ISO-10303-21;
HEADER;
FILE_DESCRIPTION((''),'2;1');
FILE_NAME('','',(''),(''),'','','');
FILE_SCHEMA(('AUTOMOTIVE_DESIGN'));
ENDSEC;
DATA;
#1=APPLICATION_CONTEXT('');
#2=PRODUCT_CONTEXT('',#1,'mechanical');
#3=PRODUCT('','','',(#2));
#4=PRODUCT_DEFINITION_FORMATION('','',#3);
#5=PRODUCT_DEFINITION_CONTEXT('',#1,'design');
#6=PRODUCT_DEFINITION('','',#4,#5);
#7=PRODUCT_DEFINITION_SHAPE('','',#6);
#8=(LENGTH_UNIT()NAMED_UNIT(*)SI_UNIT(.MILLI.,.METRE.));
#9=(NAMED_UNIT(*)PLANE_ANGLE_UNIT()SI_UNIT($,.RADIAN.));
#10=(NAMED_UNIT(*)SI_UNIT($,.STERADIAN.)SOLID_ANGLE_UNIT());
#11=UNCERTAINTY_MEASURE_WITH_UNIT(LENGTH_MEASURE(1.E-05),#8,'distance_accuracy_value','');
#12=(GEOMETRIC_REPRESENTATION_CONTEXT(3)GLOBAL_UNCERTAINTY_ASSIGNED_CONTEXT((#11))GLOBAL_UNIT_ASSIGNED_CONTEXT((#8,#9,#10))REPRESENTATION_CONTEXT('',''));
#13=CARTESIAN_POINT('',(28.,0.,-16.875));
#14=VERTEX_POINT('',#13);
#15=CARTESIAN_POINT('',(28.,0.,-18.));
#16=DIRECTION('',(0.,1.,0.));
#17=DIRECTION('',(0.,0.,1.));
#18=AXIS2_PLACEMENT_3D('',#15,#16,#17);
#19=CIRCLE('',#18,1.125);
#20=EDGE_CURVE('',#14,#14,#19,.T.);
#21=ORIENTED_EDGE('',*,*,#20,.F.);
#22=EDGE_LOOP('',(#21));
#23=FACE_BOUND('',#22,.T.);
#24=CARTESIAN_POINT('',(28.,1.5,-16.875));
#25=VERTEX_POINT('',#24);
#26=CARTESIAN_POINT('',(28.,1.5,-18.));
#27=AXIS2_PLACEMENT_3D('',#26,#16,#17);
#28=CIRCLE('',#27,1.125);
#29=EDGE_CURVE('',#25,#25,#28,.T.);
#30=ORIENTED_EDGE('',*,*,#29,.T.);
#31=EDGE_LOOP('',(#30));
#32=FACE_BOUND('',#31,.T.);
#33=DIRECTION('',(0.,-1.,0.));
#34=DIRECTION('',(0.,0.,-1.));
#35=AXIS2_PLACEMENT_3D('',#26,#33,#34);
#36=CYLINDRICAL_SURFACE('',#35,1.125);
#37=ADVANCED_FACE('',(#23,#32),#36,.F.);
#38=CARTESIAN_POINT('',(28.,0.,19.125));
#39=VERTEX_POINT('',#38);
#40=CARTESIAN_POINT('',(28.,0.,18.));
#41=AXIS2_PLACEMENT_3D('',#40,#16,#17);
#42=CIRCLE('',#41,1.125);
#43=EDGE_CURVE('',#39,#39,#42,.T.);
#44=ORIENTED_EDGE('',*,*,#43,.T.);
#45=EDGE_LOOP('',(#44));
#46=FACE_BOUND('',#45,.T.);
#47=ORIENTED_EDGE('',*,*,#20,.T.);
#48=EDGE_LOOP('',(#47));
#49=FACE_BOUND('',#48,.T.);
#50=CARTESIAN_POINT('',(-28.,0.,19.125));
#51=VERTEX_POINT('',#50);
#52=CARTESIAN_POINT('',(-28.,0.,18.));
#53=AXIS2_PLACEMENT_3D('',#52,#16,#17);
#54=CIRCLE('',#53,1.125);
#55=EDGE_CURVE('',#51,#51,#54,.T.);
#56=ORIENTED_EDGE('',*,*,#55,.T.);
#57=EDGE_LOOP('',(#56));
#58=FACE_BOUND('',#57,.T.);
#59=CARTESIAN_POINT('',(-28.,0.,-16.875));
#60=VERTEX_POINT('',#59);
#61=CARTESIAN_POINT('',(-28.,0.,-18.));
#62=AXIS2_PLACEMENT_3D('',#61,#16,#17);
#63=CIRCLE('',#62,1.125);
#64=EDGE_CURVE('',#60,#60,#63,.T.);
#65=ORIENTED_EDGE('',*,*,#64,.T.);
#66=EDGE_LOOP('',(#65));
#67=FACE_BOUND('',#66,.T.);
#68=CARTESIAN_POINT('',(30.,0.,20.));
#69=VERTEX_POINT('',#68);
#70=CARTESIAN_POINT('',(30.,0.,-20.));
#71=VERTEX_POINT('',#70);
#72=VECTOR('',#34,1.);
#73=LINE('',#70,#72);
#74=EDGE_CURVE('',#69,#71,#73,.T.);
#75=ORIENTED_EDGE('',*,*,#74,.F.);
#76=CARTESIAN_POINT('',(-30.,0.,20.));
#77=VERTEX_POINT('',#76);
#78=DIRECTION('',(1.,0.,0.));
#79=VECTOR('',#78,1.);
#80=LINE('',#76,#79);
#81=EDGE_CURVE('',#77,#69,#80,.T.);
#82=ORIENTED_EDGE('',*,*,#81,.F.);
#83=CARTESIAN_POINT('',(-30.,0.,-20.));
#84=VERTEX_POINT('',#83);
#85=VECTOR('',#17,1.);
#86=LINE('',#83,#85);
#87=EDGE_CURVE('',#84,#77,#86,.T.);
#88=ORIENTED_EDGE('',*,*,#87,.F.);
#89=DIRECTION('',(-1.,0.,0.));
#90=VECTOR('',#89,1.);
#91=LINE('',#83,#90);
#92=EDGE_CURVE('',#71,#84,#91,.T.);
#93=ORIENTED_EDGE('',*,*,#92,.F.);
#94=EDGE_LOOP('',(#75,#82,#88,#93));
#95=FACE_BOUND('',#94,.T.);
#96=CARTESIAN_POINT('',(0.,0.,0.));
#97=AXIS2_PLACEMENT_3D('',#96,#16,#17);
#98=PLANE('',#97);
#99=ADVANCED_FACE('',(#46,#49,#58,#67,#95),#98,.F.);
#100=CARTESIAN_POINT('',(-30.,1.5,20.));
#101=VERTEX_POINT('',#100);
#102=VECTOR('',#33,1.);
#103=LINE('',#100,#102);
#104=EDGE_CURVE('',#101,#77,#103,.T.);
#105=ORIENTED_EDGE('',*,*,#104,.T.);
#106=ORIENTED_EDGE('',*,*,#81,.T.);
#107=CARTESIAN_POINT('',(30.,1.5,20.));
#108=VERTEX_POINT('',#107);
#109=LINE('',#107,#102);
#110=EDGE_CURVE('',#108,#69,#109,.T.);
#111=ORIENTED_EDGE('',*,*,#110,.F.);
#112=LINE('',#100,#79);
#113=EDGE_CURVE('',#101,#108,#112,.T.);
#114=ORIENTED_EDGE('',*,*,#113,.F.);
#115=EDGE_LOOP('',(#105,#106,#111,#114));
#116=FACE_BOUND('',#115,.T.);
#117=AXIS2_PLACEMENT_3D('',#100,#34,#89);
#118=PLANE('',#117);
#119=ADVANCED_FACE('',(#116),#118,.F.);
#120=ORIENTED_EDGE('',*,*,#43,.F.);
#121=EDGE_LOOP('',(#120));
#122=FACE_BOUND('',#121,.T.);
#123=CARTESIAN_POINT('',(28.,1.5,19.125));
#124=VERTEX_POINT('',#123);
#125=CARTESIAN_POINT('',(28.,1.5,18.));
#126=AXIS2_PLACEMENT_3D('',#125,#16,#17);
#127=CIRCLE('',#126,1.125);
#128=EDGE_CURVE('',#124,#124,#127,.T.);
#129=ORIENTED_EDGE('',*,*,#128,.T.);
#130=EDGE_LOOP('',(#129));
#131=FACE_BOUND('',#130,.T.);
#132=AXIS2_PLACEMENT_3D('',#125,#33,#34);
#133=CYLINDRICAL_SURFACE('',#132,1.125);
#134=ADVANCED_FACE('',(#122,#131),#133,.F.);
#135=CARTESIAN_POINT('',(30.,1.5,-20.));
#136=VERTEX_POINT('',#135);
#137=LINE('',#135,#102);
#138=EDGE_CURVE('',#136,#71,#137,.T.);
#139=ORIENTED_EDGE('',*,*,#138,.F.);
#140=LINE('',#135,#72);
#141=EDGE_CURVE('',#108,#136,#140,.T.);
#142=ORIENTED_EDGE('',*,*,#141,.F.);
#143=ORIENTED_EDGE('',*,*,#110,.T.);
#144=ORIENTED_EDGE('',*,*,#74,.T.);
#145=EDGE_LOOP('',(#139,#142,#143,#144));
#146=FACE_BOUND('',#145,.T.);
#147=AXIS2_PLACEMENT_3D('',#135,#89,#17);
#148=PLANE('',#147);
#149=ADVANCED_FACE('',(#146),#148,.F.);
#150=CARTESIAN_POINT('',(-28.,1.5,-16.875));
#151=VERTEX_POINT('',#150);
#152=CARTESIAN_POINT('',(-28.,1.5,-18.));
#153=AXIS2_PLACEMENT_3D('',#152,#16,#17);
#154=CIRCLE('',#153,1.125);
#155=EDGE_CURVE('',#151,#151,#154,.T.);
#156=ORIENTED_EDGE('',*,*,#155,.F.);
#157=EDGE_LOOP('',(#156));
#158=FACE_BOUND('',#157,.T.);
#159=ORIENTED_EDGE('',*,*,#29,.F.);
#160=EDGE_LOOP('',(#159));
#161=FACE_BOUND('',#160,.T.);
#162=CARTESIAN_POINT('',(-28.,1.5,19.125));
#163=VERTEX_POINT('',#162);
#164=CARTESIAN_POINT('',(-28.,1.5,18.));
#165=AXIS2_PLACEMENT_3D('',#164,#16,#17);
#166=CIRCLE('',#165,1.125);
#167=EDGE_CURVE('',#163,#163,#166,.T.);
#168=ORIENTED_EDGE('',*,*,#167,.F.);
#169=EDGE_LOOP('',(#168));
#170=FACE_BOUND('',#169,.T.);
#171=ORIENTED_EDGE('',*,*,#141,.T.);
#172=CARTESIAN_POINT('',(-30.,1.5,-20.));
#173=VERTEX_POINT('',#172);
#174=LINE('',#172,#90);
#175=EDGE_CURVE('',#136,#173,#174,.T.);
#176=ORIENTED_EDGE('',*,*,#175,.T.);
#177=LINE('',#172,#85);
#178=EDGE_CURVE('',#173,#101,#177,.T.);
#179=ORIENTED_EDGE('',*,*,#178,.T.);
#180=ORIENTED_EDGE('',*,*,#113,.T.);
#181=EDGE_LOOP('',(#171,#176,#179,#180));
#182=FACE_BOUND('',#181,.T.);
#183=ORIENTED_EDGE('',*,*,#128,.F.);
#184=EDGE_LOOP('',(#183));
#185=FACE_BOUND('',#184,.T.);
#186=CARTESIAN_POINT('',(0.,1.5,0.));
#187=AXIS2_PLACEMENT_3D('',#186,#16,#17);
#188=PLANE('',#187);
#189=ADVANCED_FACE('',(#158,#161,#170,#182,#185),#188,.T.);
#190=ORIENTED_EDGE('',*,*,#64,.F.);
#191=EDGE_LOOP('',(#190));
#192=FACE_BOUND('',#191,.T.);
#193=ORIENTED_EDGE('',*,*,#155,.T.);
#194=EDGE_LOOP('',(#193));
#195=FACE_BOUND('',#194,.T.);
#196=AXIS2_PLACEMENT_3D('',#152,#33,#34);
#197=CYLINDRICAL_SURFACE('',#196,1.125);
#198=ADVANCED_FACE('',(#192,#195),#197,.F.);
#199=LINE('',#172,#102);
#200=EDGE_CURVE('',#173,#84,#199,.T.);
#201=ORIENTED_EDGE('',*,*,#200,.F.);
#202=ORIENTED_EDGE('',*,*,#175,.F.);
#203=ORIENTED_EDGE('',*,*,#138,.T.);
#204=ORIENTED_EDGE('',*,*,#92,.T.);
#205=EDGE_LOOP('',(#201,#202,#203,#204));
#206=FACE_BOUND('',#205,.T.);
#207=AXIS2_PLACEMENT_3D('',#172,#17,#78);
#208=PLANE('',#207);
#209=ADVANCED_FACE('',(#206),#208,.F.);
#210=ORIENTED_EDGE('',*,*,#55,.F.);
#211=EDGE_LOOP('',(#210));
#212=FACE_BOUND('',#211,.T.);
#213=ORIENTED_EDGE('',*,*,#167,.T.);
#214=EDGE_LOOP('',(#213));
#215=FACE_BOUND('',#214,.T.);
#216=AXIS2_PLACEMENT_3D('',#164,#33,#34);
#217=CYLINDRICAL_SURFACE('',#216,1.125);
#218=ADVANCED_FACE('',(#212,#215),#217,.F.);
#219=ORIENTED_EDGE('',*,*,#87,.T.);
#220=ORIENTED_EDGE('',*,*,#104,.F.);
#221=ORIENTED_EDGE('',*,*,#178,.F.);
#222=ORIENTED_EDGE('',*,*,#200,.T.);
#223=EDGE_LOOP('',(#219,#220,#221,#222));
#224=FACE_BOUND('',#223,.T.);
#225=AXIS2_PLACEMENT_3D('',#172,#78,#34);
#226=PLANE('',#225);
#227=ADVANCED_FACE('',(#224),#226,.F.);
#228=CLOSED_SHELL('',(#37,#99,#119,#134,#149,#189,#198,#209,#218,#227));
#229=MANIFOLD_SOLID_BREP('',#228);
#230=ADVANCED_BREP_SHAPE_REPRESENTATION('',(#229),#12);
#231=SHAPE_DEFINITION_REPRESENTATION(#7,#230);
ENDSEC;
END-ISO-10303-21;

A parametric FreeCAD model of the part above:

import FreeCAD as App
import Part
import Sketcher

V = App.Vector

doc = App.newDocument("Part")
body = doc.addObject("PartDesign::Body", "Body")

sketch1 = doc.addObject("Sketcher::SketchObject", "Sketch")
body.addObject(sketch1)
sketch1.AttachmentSupport = (doc.XZ_Plane, [""])
sketch1.MapMode = "FlatFace"
sketch1.addGeometry([
    Part.LineSegment(V(-30, -20, 0), V(-30, 20, 0)),
    Part.LineSegment(V(-30, 20, 0), V(30, 20, 0)),
    Part.LineSegment(V(30, 20, 0), V(30, -20, 0)),
    Part.LineSegment(V(30, -20, 0), V(-30, -20, 0)),
    Part.Circle(V(-28, 18, 0), V(0, 0, 1), 1.1),
    Part.Circle(V(28, 18, 0), V(0, 0, 1), 1.1),
    Part.Circle(V(-28, -18, 0), V(0, 0, 1), 1.1),
    Part.Circle(V(28, -18, 0), V(0, 0, 1), 1.1),
], False)
sketch1.addConstraint([
    Sketcher.Constraint("Coincident", 0, 2, 1, 1),
    Sketcher.Constraint("Coincident", 1, 2, 2, 1),
    Sketcher.Constraint("Coincident", 2, 2, 3, 1),
    Sketcher.Constraint("Coincident", 3, 2, 0, 1),
    Sketcher.Constraint("Vertical", 0),
    Sketcher.Constraint("Horizontal", 1),
    Sketcher.Constraint("Vertical", 2),
    Sketcher.Constraint("Horizontal", 3),
    Sketcher.Constraint("Equal", 4, 5),
    Sketcher.Constraint("Equal", 5, 6),
    Sketcher.Constraint("Equal", 6, 7),
    Sketcher.Constraint("Symmetric", 5, 3, 6, 3, -1, 1),
    Sketcher.Constraint("Symmetric", 4, 3, 7, 3, -1, 1),
    Sketcher.Constraint("Symmetric", 0, 2, 2, 2, -1, 1),
    Sketcher.Constraint("Symmetric", 4, 3, 5, 3, -2),
    Sketcher.Constraint("Diameter", 4, 2.25),
    Sketcher.Constraint("DistanceX", 1, 1, 1, 2, 60.0),
    Sketcher.Constraint("DistanceY", 0, 1, 0, 2, 40.0),
    Sketcher.Constraint("DistanceX", 4, 3, -1, 1, 28.0),
    Sketcher.Constraint("DistanceY", -1, 1, 4, 3, 18.0),
])
pad1 = doc.addObject("PartDesign::Pad", "Pad")
body.addObject(pad1)
pad1.Profile = sketch1
pad1.Length = 1.5
pad1.Reversed = True

doc.recompute()
